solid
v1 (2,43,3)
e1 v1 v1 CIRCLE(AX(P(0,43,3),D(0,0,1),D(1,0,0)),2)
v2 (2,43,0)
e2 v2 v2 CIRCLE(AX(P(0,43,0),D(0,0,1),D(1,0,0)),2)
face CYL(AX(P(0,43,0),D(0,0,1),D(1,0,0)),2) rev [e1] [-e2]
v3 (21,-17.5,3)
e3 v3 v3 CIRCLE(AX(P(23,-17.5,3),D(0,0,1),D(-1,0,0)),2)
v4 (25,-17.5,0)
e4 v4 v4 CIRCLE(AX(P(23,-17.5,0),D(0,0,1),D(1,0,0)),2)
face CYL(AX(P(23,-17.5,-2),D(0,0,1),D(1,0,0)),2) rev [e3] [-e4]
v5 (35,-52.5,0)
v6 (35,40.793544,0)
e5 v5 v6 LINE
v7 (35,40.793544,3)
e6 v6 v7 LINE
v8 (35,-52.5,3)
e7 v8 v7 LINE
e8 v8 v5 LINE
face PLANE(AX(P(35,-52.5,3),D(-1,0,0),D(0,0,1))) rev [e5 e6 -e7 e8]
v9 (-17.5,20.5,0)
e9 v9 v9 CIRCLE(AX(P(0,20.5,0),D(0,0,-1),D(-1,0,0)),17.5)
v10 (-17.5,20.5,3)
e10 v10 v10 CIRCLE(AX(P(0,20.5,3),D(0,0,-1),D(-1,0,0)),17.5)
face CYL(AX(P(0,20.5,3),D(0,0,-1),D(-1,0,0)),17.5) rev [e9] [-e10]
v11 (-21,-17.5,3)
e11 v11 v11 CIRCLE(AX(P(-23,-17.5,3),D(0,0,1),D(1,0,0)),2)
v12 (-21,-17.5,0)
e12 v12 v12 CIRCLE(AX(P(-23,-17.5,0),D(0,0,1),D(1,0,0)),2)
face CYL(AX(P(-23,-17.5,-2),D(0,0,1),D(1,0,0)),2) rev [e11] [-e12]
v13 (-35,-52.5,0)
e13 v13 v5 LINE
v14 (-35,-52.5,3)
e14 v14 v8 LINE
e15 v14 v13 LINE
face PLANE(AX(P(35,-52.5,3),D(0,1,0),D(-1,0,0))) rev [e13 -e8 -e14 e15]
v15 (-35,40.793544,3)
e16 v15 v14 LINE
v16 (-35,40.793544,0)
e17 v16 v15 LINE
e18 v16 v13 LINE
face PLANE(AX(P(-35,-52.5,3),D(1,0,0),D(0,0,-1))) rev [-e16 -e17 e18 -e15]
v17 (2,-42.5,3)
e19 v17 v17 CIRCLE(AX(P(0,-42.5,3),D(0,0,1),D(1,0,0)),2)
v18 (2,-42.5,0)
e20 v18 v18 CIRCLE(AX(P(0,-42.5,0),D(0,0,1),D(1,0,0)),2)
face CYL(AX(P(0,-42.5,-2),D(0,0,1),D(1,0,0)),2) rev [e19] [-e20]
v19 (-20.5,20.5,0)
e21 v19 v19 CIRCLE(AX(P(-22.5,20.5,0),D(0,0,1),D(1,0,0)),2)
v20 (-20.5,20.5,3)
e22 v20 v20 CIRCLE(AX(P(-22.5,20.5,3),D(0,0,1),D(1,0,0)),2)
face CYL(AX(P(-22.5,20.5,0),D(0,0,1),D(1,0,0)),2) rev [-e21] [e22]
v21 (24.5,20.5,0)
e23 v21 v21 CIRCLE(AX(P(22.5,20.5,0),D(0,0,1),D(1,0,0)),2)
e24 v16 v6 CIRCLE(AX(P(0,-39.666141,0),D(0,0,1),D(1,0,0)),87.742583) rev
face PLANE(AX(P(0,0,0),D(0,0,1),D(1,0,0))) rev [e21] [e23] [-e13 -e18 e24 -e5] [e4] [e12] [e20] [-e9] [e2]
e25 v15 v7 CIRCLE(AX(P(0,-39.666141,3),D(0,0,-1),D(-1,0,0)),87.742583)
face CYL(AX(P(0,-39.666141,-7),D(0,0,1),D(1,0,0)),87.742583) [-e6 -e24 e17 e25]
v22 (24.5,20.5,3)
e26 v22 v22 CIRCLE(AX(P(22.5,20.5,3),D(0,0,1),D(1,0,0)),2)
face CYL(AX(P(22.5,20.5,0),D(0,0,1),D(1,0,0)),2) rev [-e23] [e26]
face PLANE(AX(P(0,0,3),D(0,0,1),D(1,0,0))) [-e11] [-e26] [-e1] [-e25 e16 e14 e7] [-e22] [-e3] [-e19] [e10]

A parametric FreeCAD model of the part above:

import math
import FreeCAD as App
import Part
import Sketcher

V = App.Vector


def add_polygon(sketch, points):
    """Adds a closed chain of lines whose ends are joined by coincident constraints."""
    first, n = sketch.GeometryCount, len(points)
    for a, b in zip(points, points[1:] + points[:1]):
        sketch.addGeometry(Part.LineSegment(App.Vector(*a, 0), App.Vector(*b, 0)), False)
    for i in range(n):
        sketch.addConstraint(Sketcher.Constraint("Coincident", first + i, 2, first + (i + 1) % n, 1))

doc = App.newDocument("Part")
body = doc.addObject("PartDesign::Body", "Body")

sketch1 = doc.addObject("Sketcher::SketchObject", "Sketch")
body.addObject(sketch1)
sketch1.AttachmentSupport = (doc.XY_Plane, [""])
sketch1.MapMode = "FlatFace"
add_polygon(sketch1, [(-35, 52), (-35, -52), (35, -52), (35, 52)])
sketch1.addConstraint([
    Sketcher.Constraint("Vertical", 0),
    Sketcher.Constraint("Horizontal", 1),
    Sketcher.Constraint("Vertical", 2),
    Sketcher.Constraint("Horizontal", 3),
    Sketcher.Constraint("Symmetric", 0, 2, 2, 2, -1, 1),
    Sketcher.Constraint("DistanceX", 1, 1, 1, 2, 70.0),
    Sketcher.Constraint("DistanceY", 0, 2, 0, 1, 105.0),
])
pad1 = doc.addObject("PartDesign::Pad", "Pad")
body.addObject(pad1)
pad1.Profile = sketch1
pad1.Length = 3

sketch2 = doc.addObject("Sketcher::SketchObject", "Sketch001")
body.addObject(sketch2)
sketch2.AttachmentSupport = (doc.XY_Plane, [""])
sketch2.MapMode = "FlatFace"
sketch2.addGeometry(Part.Circle(V(0, 20, 0), V(0, 0, 1), 18), False)
sketch2.addConstraint([
    Sketcher.Constraint("PointOnObject", 0, 3, -2),
    Sketcher.Constraint("Diameter", 0, 35.0),
    Sketcher.Constraint("DistanceY", -1, 1, 0, 3, 20.5),
])
pocket1 = doc.addObject("PartDesign::Pocket", "Pocket")
body.addObject(pocket1)
pocket1.Profile = sketch2
pocket1.Length = 3
pocket1.Reversed = True

sketch3 = doc.addObject("Sketcher::SketchObject", "Sketch002")
body.addObject(sketch3)
sketch3.AttachmentSupport = (doc.XY_Plane, [""])
sketch3.MapMode = "FlatFace"
sketch3.AttachmentOffset = App.Placement(V(0, 0, 3), App.Rotation())
sketch3.addGeometry([
    Part.Circle(V(-22.5, 20.5, 0), V(0, 0, 1), 2),
    Part.Circle(V(0, 43, 0), V(0, 0, 1), 2),
    Part.Circle(V(22.5, 20.5, 0), V(0, 0, 1), 2),
], False)
sketch3.addConstraint([
    Sketcher.Constraint("Equal", 0, 1),
    Sketcher.Constraint("Equal", 1, 2),
    Sketcher.Constraint("Symmetric", 0, 3, 2, 3, -2),
    Sketcher.Constraint("PointOnObject", 1, 3, -2),
    Sketcher.Constraint("Diameter", 0, 4.0),
    Sketcher.Constraint("DistanceY", -1, 1, 1, 3, 43.0),
    Sketcher.Constraint("DistanceX", 0, 3, 2, 3, 45.0),
    Sketcher.Constraint("DistanceY", -1, 1, 0, 3, 20.5),
])
pocket2 = doc.addObject("PartDesign::Pocket", "Pocket001")
body.addObject(pocket2)
pocket2.Profile = sketch3
pocket2.Length = 3

sketch4 = doc.addObject("Sketcher::SketchObject", "Sketch003")
body.addObject(sketch4)
sketch4.AttachmentSupport = (doc.XY_Plane, [""])
sketch4.MapMode = "FlatFace"
sketch4.AttachmentOffset = App.Placement(V(0, 0, 3), App.Rotation())
sketch4.addGeometry([
    Part.Circle(V(0, -42.5, 0), V(0, 0, 1), 2),
    Part.Circle(V(-23, -17.5, 0), V(0, 0, 1), 2),
    Part.Circle(V(23, -17.5, 0), V(0, 0, 1), 2),
], False)
sketch4.addConstraint([
    Sketcher.Constraint("Equal", 0, 1),
    Sketcher.Constraint("Equal", 1, 2),
    Sketcher.Constraint("Symmetric", 1, 3, 2, 3, -2),
    Sketcher.Constraint("PointOnObject", 0, 3, -2),
    Sketcher.Constraint("Diameter", 0, 4.0),
    Sketcher.Constraint("DistanceX", 1, 3, -1, 1, 23.0),
    Sketcher.Constraint("DistanceY", 0, 3, 1, 3, 25.0),
    Sketcher.Constraint("DistanceY", 0, 3, -1, 1, 42.5),
])
pocket3 = doc.addObject("PartDesign::Pocket", "Pocket002")
body.addObject(pocket3)
pocket3.Profile = sketch4
pocket3.Length = 5

sketch5 = doc.addObject("Sketcher::SketchObject", "Sketch004")
body.addObject(sketch5)
sketch5.AttachmentSupport = (doc.XY_Plane, [""])
sketch5.MapMode = "FlatFace"
sketch5.AttachmentOffset = App.Placement(V(0, 0, 3), App.Rotation())
sketch5.addGeometry([
    Part.LineSegment(V(-35, 52, 0), V(-35, 41, 0)),
    Part.ArcOfCircle(Part.Circle(V(0, -40, 0), V(0, 0, 1), 88), math.radians(66), math.radians(114)),
    Part.LineSegment(V(35, 41, 0), V(35, 52, 0)),
    Part.LineSegment(V(35, 52, 0), V(-35, 52, 0)),
], False)
sketch5.addConstraint([
    Sketcher.Constraint("Coincident", 0, 2, 1, 2),
    Sketcher.Constraint("Coincident", 1, 1, 2, 1),
    Sketcher.Constraint("Coincident", 2, 2, 3, 1),
    Sketcher.Constraint("Coincident", 3, 2, 0, 1),
    Sketcher.Constraint("Vertical", 0),
    Sketcher.Constraint("Vertical", 2),
    Sketcher.Constraint("Horizontal", 3),
    Sketcher.Constraint("Symmetric", 0, 2, 1, 1, -2),
    Sketcher.Constraint("DistanceX", 3, 2, 3, 1, 70.0),
    Sketcher.Constraint("DistanceY", -1, 1, 2, 2, 52.5),
    Sketcher.Constraint("Radius", 1, 87.742583),
    Sketcher.Constraint("DistanceY", 0, 2, 0, 1, 11.706456),
])
pocket4 = doc.addObject("PartDesign::Pocket", "Pocket003")
body.addObject(pocket4)
pocket4.Profile = sketch5
pocket4.Length = 10

doc.recompute()
